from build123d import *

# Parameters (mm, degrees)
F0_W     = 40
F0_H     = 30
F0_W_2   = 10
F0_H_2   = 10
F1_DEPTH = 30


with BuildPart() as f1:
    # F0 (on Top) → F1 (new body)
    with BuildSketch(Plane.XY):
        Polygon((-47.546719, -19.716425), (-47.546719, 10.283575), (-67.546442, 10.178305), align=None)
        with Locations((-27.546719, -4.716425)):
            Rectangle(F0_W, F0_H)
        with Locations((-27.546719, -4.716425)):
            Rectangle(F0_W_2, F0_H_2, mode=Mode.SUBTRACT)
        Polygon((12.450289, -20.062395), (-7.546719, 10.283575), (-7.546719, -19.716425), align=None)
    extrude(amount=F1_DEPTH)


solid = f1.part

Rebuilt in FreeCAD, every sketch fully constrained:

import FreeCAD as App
import Part
import Sketcher
from FreeCAD import Vector


def add_polygon(sketch, points):
    """Adds a closed chain of lines whose ends are joined by coincident constraints."""
    first, n = sketch.GeometryCount, len(points)
    for a, b in zip(points, points[1:] + points[:1]):
        sketch.addGeometry(Part.LineSegment(App.Vector(*a, 0), App.Vector(*b, 0)), False)
    for i in range(n):
        sketch.addConstraint(Sketcher.Constraint("Coincident", first + i, 2, first + (i + 1) % n, 1))

doc = App.newDocument("Part")
body = doc.addObject("PartDesign::Body", "Body")

sketch1 = body.newObject("Sketcher::SketchObject", "Sketch")
sketch1.AttachmentSupport = (doc.getObject("XY_Plane"), [""])
sketch1.MapMode = "FlatFace"
add_polygon(sketch1, [(-47.546719, 10.283575), (-67.546442, 10.178305), (-47.546719, -19.716425), (-7.546719, -19.716425), (12.450289, -20.062395), (-7.546719, 10.283575)])
add_polygon(sketch1, [(-22.546719, -9.716425), (-32.546719, -9.716425), (-32.546719, 0.283575), (-22.546719, 0.283575)])
sketch1.addConstraint([
    Sketcher.Constraint("Horizontal", 2),
    Sketcher.Constraint("Horizontal", 5),
    Sketcher.Constraint("Horizontal", 6),
    Sketcher.Constraint("Vertical", 7),
    Sketcher.Constraint("Horizontal", 8),
    Sketcher.Constraint("Vertical", 9),
    Sketcher.Constraint("Vertical", 2, 2, 4, 2),
    Sketcher.Constraint("Vertical", 1, 2, 5, 2),
    Sketcher.Constraint("Equal", 8, 7),
    Sketcher.Constraint("Equal", 0, 3),
    Sketcher.Constraint("DistanceX", 2, 1, 2, 2, 40.0),
    Sketcher.Constraint("DistanceX", 6, 2, 6, 1, 10.0),
    Sketcher.Constraint("Distance", 0, 20.0),
    Sketcher.Constraint("DistanceY", 2, 2, 4, 2, 30.0),
    Sketcher.Constraint("DistanceX", 1, 2, 6, 2, 15.0),
    Sketcher.Constraint("DistanceY", 1, 2, 6, 2, 10.0),
    Sketcher.Constraint("DistanceY", 3, 2, 0, 2, 30.2407),
    Sketcher.Constraint("DistanceX", 0, 2, -1, 1, 67.546442),
    Sketcher.Constraint("DistanceX", 1, 2, -1, 1, 47.546719),
    Sketcher.Constraint("DistanceY", -1, 1, 0, 2, 10.178305),
])
pad1 = body.newObject("PartDesign::Pad", "Pad")
pad1.Profile = sketch1
pad1.Length = 30

doc.recompute()
